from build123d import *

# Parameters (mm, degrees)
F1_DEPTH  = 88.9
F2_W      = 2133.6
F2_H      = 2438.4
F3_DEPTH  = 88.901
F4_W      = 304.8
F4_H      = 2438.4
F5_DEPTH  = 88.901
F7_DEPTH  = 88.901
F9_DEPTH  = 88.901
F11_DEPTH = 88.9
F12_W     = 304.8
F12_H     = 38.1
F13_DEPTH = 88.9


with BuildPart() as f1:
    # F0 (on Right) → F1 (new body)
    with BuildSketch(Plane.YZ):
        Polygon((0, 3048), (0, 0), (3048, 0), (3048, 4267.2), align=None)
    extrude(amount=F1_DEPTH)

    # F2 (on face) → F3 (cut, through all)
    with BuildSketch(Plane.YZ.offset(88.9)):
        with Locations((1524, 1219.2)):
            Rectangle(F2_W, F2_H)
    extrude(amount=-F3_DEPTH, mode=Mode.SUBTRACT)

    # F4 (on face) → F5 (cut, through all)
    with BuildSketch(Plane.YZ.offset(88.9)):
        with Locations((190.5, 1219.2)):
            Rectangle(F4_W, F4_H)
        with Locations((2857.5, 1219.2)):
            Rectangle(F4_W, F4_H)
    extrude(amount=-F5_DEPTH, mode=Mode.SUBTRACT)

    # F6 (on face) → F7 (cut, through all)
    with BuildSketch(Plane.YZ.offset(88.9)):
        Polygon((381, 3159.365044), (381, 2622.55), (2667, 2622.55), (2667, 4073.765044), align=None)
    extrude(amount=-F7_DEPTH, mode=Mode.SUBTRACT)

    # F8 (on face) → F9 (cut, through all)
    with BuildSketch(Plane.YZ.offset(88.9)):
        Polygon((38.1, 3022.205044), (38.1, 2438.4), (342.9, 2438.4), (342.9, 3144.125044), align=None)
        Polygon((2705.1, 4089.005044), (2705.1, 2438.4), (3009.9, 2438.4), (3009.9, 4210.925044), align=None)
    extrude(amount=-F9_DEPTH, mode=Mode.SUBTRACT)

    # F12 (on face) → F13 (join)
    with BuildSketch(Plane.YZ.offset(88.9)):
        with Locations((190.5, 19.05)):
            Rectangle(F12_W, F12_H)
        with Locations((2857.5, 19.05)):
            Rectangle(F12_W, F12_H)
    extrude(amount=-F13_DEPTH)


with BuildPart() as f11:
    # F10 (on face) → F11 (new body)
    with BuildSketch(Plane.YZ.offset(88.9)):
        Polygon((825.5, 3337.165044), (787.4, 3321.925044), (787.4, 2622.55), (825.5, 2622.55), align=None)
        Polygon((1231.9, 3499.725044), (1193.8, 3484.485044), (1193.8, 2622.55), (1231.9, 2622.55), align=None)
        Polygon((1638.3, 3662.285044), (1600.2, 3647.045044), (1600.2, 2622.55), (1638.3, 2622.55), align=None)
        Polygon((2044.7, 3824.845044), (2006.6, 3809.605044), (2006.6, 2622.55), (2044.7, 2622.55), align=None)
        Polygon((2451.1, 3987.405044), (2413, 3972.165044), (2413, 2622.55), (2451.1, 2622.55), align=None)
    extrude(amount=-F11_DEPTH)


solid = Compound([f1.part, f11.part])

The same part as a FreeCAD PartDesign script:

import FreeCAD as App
import Part
import Sketcher
from FreeCAD import Vector
Q = App.Units.Quantity


def add_polygon(sketch, points):
    """Adds a closed chain of lines whose ends are joined by coincident constraints."""
    first, n = sketch.GeometryCount, len(points)
    for a, b in zip(points, points[1:] + points[:1]):
        sketch.addGeometry(Part.LineSegment(App.Vector(*a, 0), App.Vector(*b, 0)), False)
    for i in range(n):
        sketch.addConstraint(Sketcher.Constraint("Coincident", first + i, 2, first + (i + 1) % n, 1))

doc = App.newDocument("Part")
params = doc.addObject("Spreadsheet::Sheet", "Params")
for row, (alias, value) in enumerate([
    ("sketch1_width", "120 in"),
    ("sketch1_height", "168 in"),
    ("pad1_length", "3.5 in"),
    ("sketch2_width", "84 in"),
    ("sketch2_height", "96 in"),
    ("sketch3_width", "12 in"),
    ("sketch3_height", "96 in"),
    ("sketch4_width", "90 in"),
    ("sketch5_width", "12 in"),
    ("sketch6_width", "12 in"),
    ("sketch6_height", "1.5 in"),
    ("pad2_length", "3.5 in"),
    ("sketch7_width", "1.5 in"),
    ("pad3_length", "3.5 in"),
], start=1):
    params.set(f"A{row}", alias)
    params.set(f"B{row}", "=" + value)
    params.setAlias(f"B{row}", alias)

body = doc.addObject("PartDesign::Body", "Body")

# Sketch on YZ plane
sketch1 = body.newObject("Sketcher::SketchObject", "Sketch")
sketch1.AttachmentSupport = (doc.getObject("YZ_Plane"), [""])
sketch1.MapMode = "FlatFace"
add_polygon(sketch1, [(0, 3048), (0, 0), (3048, 0), (3048, 4267)])  # lines 0-3
sketch1.addConstraint(Sketcher.Constraint("Vertical", 0))
sketch1.addConstraint(Sketcher.Constraint("Horizontal", 1))
sketch1.addConstraint(Sketcher.Constraint("Vertical", 2))
sketch1.addConstraint(Sketcher.Constraint("Coincident", 0, 2, -1, 1))
sketch1.addConstraint(Sketcher.Constraint("Equal", 1, 0))
sketch1.addConstraint(Sketcher.Constraint("DistanceX", 1, 1, 1, 2, Q("120 in")))
sketch1.addConstraint(Sketcher.Constraint("DistanceY", 2, 1, 2, 2, Q("168 in")))
sketch1.setExpression("Constraints[9]", "Params.sketch1_width")
sketch1.setExpression("Constraints[10]", "Params.sketch1_height")
pad1 = body.newObject("PartDesign::Pad", "Pad")
pad1.Profile = sketch1
pad1.setExpression("Length", "Params.pad1_length")

# Sketch on YZ plane
sketch2 = body.newObject("Sketcher::SketchObject", "Sketch001")
sketch2.AttachmentSupport = (doc.getObject("YZ_Plane"), [""])
sketch2.MapMode = "FlatFace"
sketch2.AttachmentOffset = App.Placement(Vector(0, 0, 3.5 * 25.4), App.Rotation())
add_polygon(sketch2, [(457, 2438), (457, 0), (2591, 0), (2591, 2438)])  # lines 0-3
sketch2.addConstraint(Sketcher.Constraint("Vertical", 0))
sketch2.addConstraint(Sketcher.Constraint("Horizontal", 1))
sketch2.addConstraint(Sketcher.Constraint("Vertical", 2))
sketch2.addConstraint(Sketcher.Constraint("Horizontal", 3))
sketch2.addConstraint(Sketcher.Constraint("PointOnObject", 0, 2, -1))
sketch2.addConstraint(Sketcher.Constraint("DistanceX", 1, 1, 1, 2, Q("84 in")))
sketch2.addConstraint(Sketcher.Constraint("DistanceY", 0, 2, 0, 1, Q("96 in")))
sketch2.addConstraint(Sketcher.Constraint("DistanceX", -1, 1, 0, 2, Q("18 in")))
sketch2.setExpression("Constraints[9]", "Params.sketch2_width")
sketch2.setExpression("Constraints[10]", "Params.sketch2_height")
pocket1 = body.newObject("PartDesign::Pocket", "Pocket")
pocket1.Profile = sketch2
pocket1.Type = "ThroughAll"

# Sketch on YZ plane
sketch3 = body.newObject("Sketcher::SketchObject", "Sketch002")
sketch3.AttachmentSupport = (doc.getObject("YZ_Plane"), [""])
sketch3.MapMode = "FlatFace"
sketch3.AttachmentOffset = App.Placement(Vector(0, 0, 3.5 * 25.4), App.Rotation())
add_polygon(sketch3, [(38, 2438), (38, 0), (343, 0), (343, 2438)])  # lines 0-3
add_polygon(sketch3, [(2705, 2438), (2705, 0), (3010, 0), (3010, 2438)])  # lines 4-7
sketch3.addConstraint(Sketcher.Constraint("Vertical", 0))
sketch3.addConstraint(Sketcher.Constraint("Horizontal", 1))
sketch3.addConstraint(Sketcher.Constraint("Vertical", 2))
sketch3.addConstraint(Sketcher.Constraint("Horizontal", 3))
sketch3.addConstraint(Sketcher.Constraint("Vertical", 4))
sketch3.addConstraint(Sketcher.Constraint("Horizontal", 5))
sketch3.addConstraint(Sketcher.Constraint("Vertical", 6))
sketch3.addConstraint(Sketcher.Constraint("Horizontal", 7))
sketch3.addConstraint(Sketcher.Constraint("PointOnObject", 0, 2, -1))
sketch3.addConstraint(Sketcher.Constraint("PointOnObject", 4, 2, -1))
sketch3.addConstraint(Sketcher.Constraint("Horizontal", 3, 2, 6, 2))
sketch3.addConstraint(Sketcher.Constraint("Equal", 3, 5))
sketch3.addConstraint(Sketcher.Constraint("DistanceX", 1, 1, 1, 2, Q("12 in")))
sketch3.addConstraint(Sketcher.Constraint("DistanceY", 0, 2, 0, 1, Q("96 in")))
sketch3.addConstraint(Sketcher.Constraint("DistanceX", 1, 2, 4, 2, Q("93 in")))
sketch3.addConstraint(Sketcher.Constraint("DistanceX", -1, 1, 0, 2, Q("1.5 in")))
sketch3.setExpression("Constraints[20]", "Params.sketch3_width")
sketch3.setExpression("Constraints[21]", "Params.sketch3_height")
pocket2 = body.newObject("PartDesign::Pocket", "Pocket001")
pocket2.Profile = sketch3
pocket2.Type = "ThroughAll"

# Sketch on YZ plane
sketch4 = body.newObject("Sketcher::SketchObject", "Sketch003")
sketch4.AttachmentSupport = (doc.getObject("YZ_Plane"), [""])
sketch4.MapMode = "FlatFace"
sketch4.AttachmentOffset = App.Placement(Vector(0, 0, 3.5 * 25.4), App.Rotation())
add_polygon(sketch4, [(381, 3159), (381, 2623), (2667, 2623), (2667, 4074)])  # lines 0-3
sketch4.addConstraint(Sketcher.Constraint("Vertical", 0))
sketch4.addConstraint(Sketcher.Constraint("Horizontal", 1))
sketch4.addConstraint(Sketcher.Constraint("Vertical", 2))
sketch4.addConstraint(Sketcher.Constraint("DistanceX", 1, 1, 1, 2, Q("90 in")))
sketch4.addConstraint(Sketcher.Constraint("DistanceX", -1, 1, 0, 2, Q("15 in")))
sketch4.addConstraint(Sketcher.Constraint("DistanceY", 3, 2, 2, 2, Q("36 in")))
sketch4.addConstraint(Sketcher.Constraint("DistanceY", -1, 1, 0, 2, Q("103.25 in")))
sketch4.addConstraint(Sketcher.Constraint("DistanceY", 0, 2, 0, 1, 536.815044))
sketch4.setExpression("Constraints[7]", "Params.sketch4_width")
pocket3 = body.newObject("PartDesign::Pocket", "Pocket002")
pocket3.Profile = sketch4
pocket3.Type = "ThroughAll"

# Sketch on YZ plane
sketch5 = body.newObject("Sketcher::SketchObject", "Sketch004")
sketch5.AttachmentSupport = (doc.getObject("YZ_Plane"), [""])
sketch5.MapMode = "FlatFace"
sketch5.AttachmentOffset = App.Placement(Vector(0, 0, 3.5 * 25.4), App.Rotation())
add_polygon(sketch5, [(38, 3022), (38, 2438), (343, 2438), (343, 3144)])  # lines 0-3
add_polygon(sketch5, [(2705, 4089), (2705, 2438), (3010, 2438), (3010, 4211)])  # lines 4-7
sketch5.addConstraint(Sketcher.Constraint("Vertical", 0))
sketch5.addConstraint(Sketcher.Constraint("Horizontal", 1))
sketch5.addConstraint(Sketcher.Constraint("Vertical", 2))
sketch5.addConstraint(Sketcher.Constraint("Vertical", 4))
sketch5.addConstraint(Sketcher.Constraint("Horizontal", 5))
sketch5.addConstraint(Sketcher.Constraint("Vertical", 6))
sketch5.addConstraint(Sketcher.Constraint("Parallel", 3, 7))
sketch5.addConstraint(Sketcher.Constraint("Horizontal", 1, 2, 4, 2))
sketch5.addConstraint(Sketcher.Constraint("Equal", 1, 5))
sketch5.addConstraint(Sketcher.Constraint("DistanceX", 1, 1, 1, 2, Q("12 in")))
sketch5.addConstraint(Sketcher.Constraint("DistanceY", -1, 1, 0, 2, Q("96 in")))
sketch5.addConstraint(Sketcher.Constraint("DistanceX", 1, 2, 4, 2, Q("93 in")))
sketch5.addConstraint(Sketcher.Constraint("DistanceY", 2, 2, 6, 2, Q("42 in")))
sketch5.addConstraint(Sketcher.Constraint("DistanceX", -1, 1, 0, 2, Q("1.5 in")))
sketch5.addConstraint(Sketcher.Constraint("DistanceY", 3, 2, 2, 2, Q("4.8 in")))
sketch5.addConstraint(Sketcher.Constraint("DistanceY", 0, 2, 0, 1, 583.805044))
sketch5.setExpression("Constraints[17]", "Params.sketch5_width")
pocket4 = body.newObject("PartDesign::Pocket", "Pocket003")
pocket4.Profile = sketch5
pocket4.Type = "ThroughAll"

# Sketch on YZ plane
sketch6 = body.newObject("Sketcher::SketchObject", "Sketch005")
sketch6.AttachmentSupport = (doc.getObject("YZ_Plane"), [""])
sketch6.MapMode = "FlatFace"
sketch6.AttachmentOffset = App.Placement(Vector(0, 0, 3.5 * 25.4), App.Rotation())
add_polygon(sketch6, [(38, 38), (38, 0), (343, 0), (343, 38)])  # lines 0-3
add_polygon(sketch6, [(2705, 38), (2705, 0), (3010, 0), (3010, 38)])  # lines 4-7
sketch6.addConstraint(Sketcher.Constraint("Vertical", 0))
sketch6.addConstraint(Sketcher.Constraint("Horizontal", 1))
sketch6.addConstraint(Sketcher.Constraint("Vertical", 2))
sketch6.addConstraint(Sketcher.Constraint("Horizontal", 3))
sketch6.addConstraint(Sketcher.Constraint("Vertical", 4))
sketch6.addConstraint(Sketcher.Constraint("Horizontal", 5))
sketch6.addConstraint(Sketcher.Constraint("Vertical", 6))
sketch6.addConstraint(Sketcher.Constraint("Horizontal", 7))
sketch6.addConstraint(Sketcher.Constraint("PointOnObject", 0, 2, -1))
sketch6.addConstraint(Sketcher.Constraint("PointOnObject", 4, 2, -1))
sketch6.addConstraint(Sketcher.Constraint("Horizontal", 3, 2, 6, 2))
sketch6.addConstraint(Sketcher.Constraint("Equal", 3, 5))
sketch6.addConstraint(Sketcher.Constraint("DistanceX", 1, 1, 1, 2, Q("12 in")))
sketch6.addConstraint(Sketcher.Constraint("DistanceY", 0, 2, 0, 1, Q("1.5 in")))
sketch6.addConstraint(Sketcher.Constraint("DistanceX", 1, 2, 4, 2, Q("93 in")))
sketch6.addConstraint(Sketcher.Constraint("DistanceX", -1, 1, 0, 2, Q("1.5 in")))
sketch6.setExpression("Constraints[20]", "Params.sketch6_width")
sketch6.setExpression("Constraints[21]", "Params.sketch6_height")
pad2 = body.newObject("PartDesign::Pad", "Pad001")
pad2.Profile = sketch6
pad2.setExpression("Length", "Params.pad2_length")
pad2.Reversed = True
body2 = doc.addObject("PartDesign::Body", "Body001")
body2.AllowCompound = True

# Sketch on YZ plane
sketch7 = body2.newObject("Sketcher::SketchObject", "Sketch006")
sketch7.AttachmentSupport = (doc.getObject("YZ_Plane001"), [""])
sketch7.MapMode = "FlatFace"
sketch7.AttachmentOffset = App.Placement(Vector(0, 0, 3.5 * 25.4), App.Rotation())
add_polygon(sketch7, [(826, 3337), (787, 3322), (787, 2623), (826, 2623)])  # lines 0-3
add_polygon(sketch7, [(1232, 3500), (1194, 3484), (1194, 2623), (1232, 2623)])  # lines 4-7
add_polygon(sketch7, [(1638, 3662), (1600, 3647), (1600, 2623), (1638, 2623)])  # lines 8-11
add_polygon(sketch7, [(2045, 3825), (2007, 3810), (2007, 2623), (2045, 2623)])  # lines 12-15
add_polygon(sketch7, [(2451, 3987), (2413, 3972), (2413, 2623), (2451, 2623)])  # lines 16-19
sketch7.addConstraint(Sketcher.Constraint("Vertical", 1))
sketch7.addConstraint(Sketcher.Constraint("Horizontal", 2))
sketch7.addConstraint(Sketcher.Constraint("Vertical", 3))
sketch7.addConstraint(Sketcher.Constraint("Vertical", 5))
sketch7.addConstraint(Sketcher.Constraint("Horizontal", 6))
sketch7.addConstraint(Sketcher.Constraint("Vertical", 7))
sketch7.addConstraint(Sketcher.Constraint("Vertical", 9))
sketch7.addConstraint(Sketcher.Constraint("Horizontal", 10))
sketch7.addConstraint(Sketcher.Constraint("Vertical", 11))
sketch7.addConstraint(Sketcher.Constraint("Vertical", 13))
sketch7.addConstraint(Sketcher.Constraint("Horizontal", 14))
sketch7.addConstraint(Sketcher.Constraint("Vertical", 15))
sketch7.addConstraint(Sketcher.Constraint("Vertical", 17))
sketch7.addConstraint(Sketcher.Constraint("Horizontal", 18))
sketch7.addConstraint(Sketcher.Constraint("Vertical", 19))
sketch7.addConstraint(Sketcher.Constraint("Parallel", 0, 4))
sketch7.addConstraint(Sketcher.Constraint("Parallel", 4, 8))
sketch7.addConstraint(Sketcher.Constraint("Parallel", 8, 12))
sketch7.addConstraint(Sketcher.Constraint("Parallel", 12, 16))
sketch7.addConstraint(Sketcher.Constraint("Horizontal", 2, 2, 5, 2))
sketch7.addConstraint(Sketcher.Constraint("Horizontal", 6, 2, 9, 2))
sketch7.addConstraint(Sketcher.Constraint("Horizontal", 10, 2, 13, 2))
sketch7.addConstraint(Sketcher.Constraint("Horizontal", 14, 2, 17, 2))
sketch7.addConstraint(Sketcher.Constraint("Equal", 2, 6))
sketch7.addConstraint(Sketcher.Constraint("Equal", 6, 10))
sketch7.addConstraint(Sketcher.Constraint("Equal", 10, 14))
sketch7.addConstraint(Sketcher.Constraint("Equal", 14, 18))
sketch7.addConstraint(Sketcher.Constraint("DistanceX", 2, 1, 2, 2, Q("1.5 in")))
sketch7.addConstraint(Sketcher.Constraint("DistanceX", -1, 1, 0, 2, Q("31 in")))
sketch7.addConstraint(Sketcher.Constraint("DistanceX", -1, 1, 4, 2, Q("47 in")))
sketch7.addConstraint(Sketcher.Constraint("DistanceX", -1, 1, 8, 2, Q("63 in")))
sketch7.addConstraint(Sketcher.Constraint("DistanceX", -1, 1, 12, 2, Q("79 in")))
sketch7.addConstraint(Sketcher.Constraint("DistanceX", -1, 1, 16, 2, Q("95 in")))
sketch7.addConstraint(Sketcher.Constraint("DistanceY", 0, 2, 7, 2, Q("7 in")))
sketch7.addConstraint(Sketcher.Constraint("DistanceY", 4, 2, 11, 2, Q("7 in")))
sketch7.addConstraint(Sketcher.Constraint("DistanceY", 8, 2, 15, 2, Q("7 in")))
sketch7.addConstraint(Sketcher.Constraint("DistanceY", 12, 2, 19, 2, Q("7 in")))
sketch7.addConstraint(Sketcher.Constraint("DistanceY", 0, 2, 3, 2, Q("0.6 in")))
sketch7.addConstraint(Sketcher.Constraint("DistanceY", -1, 1, 1, 2, Q("103.25 in")))
sketch7.addConstraint(Sketcher.Constraint("DistanceY", 1, 2, 1, 1, 699.375044))
sketch7.setExpression("Constraints[47]", "Params.sketch7_width")
pad3 = body2.newObject("PartDesign::Pad", "Pad002")
pad3.Profile = sketch7
pad3.setExpression("Length", "Params.pad3_length")
pad3.Reversed = True

doc.recompute()
